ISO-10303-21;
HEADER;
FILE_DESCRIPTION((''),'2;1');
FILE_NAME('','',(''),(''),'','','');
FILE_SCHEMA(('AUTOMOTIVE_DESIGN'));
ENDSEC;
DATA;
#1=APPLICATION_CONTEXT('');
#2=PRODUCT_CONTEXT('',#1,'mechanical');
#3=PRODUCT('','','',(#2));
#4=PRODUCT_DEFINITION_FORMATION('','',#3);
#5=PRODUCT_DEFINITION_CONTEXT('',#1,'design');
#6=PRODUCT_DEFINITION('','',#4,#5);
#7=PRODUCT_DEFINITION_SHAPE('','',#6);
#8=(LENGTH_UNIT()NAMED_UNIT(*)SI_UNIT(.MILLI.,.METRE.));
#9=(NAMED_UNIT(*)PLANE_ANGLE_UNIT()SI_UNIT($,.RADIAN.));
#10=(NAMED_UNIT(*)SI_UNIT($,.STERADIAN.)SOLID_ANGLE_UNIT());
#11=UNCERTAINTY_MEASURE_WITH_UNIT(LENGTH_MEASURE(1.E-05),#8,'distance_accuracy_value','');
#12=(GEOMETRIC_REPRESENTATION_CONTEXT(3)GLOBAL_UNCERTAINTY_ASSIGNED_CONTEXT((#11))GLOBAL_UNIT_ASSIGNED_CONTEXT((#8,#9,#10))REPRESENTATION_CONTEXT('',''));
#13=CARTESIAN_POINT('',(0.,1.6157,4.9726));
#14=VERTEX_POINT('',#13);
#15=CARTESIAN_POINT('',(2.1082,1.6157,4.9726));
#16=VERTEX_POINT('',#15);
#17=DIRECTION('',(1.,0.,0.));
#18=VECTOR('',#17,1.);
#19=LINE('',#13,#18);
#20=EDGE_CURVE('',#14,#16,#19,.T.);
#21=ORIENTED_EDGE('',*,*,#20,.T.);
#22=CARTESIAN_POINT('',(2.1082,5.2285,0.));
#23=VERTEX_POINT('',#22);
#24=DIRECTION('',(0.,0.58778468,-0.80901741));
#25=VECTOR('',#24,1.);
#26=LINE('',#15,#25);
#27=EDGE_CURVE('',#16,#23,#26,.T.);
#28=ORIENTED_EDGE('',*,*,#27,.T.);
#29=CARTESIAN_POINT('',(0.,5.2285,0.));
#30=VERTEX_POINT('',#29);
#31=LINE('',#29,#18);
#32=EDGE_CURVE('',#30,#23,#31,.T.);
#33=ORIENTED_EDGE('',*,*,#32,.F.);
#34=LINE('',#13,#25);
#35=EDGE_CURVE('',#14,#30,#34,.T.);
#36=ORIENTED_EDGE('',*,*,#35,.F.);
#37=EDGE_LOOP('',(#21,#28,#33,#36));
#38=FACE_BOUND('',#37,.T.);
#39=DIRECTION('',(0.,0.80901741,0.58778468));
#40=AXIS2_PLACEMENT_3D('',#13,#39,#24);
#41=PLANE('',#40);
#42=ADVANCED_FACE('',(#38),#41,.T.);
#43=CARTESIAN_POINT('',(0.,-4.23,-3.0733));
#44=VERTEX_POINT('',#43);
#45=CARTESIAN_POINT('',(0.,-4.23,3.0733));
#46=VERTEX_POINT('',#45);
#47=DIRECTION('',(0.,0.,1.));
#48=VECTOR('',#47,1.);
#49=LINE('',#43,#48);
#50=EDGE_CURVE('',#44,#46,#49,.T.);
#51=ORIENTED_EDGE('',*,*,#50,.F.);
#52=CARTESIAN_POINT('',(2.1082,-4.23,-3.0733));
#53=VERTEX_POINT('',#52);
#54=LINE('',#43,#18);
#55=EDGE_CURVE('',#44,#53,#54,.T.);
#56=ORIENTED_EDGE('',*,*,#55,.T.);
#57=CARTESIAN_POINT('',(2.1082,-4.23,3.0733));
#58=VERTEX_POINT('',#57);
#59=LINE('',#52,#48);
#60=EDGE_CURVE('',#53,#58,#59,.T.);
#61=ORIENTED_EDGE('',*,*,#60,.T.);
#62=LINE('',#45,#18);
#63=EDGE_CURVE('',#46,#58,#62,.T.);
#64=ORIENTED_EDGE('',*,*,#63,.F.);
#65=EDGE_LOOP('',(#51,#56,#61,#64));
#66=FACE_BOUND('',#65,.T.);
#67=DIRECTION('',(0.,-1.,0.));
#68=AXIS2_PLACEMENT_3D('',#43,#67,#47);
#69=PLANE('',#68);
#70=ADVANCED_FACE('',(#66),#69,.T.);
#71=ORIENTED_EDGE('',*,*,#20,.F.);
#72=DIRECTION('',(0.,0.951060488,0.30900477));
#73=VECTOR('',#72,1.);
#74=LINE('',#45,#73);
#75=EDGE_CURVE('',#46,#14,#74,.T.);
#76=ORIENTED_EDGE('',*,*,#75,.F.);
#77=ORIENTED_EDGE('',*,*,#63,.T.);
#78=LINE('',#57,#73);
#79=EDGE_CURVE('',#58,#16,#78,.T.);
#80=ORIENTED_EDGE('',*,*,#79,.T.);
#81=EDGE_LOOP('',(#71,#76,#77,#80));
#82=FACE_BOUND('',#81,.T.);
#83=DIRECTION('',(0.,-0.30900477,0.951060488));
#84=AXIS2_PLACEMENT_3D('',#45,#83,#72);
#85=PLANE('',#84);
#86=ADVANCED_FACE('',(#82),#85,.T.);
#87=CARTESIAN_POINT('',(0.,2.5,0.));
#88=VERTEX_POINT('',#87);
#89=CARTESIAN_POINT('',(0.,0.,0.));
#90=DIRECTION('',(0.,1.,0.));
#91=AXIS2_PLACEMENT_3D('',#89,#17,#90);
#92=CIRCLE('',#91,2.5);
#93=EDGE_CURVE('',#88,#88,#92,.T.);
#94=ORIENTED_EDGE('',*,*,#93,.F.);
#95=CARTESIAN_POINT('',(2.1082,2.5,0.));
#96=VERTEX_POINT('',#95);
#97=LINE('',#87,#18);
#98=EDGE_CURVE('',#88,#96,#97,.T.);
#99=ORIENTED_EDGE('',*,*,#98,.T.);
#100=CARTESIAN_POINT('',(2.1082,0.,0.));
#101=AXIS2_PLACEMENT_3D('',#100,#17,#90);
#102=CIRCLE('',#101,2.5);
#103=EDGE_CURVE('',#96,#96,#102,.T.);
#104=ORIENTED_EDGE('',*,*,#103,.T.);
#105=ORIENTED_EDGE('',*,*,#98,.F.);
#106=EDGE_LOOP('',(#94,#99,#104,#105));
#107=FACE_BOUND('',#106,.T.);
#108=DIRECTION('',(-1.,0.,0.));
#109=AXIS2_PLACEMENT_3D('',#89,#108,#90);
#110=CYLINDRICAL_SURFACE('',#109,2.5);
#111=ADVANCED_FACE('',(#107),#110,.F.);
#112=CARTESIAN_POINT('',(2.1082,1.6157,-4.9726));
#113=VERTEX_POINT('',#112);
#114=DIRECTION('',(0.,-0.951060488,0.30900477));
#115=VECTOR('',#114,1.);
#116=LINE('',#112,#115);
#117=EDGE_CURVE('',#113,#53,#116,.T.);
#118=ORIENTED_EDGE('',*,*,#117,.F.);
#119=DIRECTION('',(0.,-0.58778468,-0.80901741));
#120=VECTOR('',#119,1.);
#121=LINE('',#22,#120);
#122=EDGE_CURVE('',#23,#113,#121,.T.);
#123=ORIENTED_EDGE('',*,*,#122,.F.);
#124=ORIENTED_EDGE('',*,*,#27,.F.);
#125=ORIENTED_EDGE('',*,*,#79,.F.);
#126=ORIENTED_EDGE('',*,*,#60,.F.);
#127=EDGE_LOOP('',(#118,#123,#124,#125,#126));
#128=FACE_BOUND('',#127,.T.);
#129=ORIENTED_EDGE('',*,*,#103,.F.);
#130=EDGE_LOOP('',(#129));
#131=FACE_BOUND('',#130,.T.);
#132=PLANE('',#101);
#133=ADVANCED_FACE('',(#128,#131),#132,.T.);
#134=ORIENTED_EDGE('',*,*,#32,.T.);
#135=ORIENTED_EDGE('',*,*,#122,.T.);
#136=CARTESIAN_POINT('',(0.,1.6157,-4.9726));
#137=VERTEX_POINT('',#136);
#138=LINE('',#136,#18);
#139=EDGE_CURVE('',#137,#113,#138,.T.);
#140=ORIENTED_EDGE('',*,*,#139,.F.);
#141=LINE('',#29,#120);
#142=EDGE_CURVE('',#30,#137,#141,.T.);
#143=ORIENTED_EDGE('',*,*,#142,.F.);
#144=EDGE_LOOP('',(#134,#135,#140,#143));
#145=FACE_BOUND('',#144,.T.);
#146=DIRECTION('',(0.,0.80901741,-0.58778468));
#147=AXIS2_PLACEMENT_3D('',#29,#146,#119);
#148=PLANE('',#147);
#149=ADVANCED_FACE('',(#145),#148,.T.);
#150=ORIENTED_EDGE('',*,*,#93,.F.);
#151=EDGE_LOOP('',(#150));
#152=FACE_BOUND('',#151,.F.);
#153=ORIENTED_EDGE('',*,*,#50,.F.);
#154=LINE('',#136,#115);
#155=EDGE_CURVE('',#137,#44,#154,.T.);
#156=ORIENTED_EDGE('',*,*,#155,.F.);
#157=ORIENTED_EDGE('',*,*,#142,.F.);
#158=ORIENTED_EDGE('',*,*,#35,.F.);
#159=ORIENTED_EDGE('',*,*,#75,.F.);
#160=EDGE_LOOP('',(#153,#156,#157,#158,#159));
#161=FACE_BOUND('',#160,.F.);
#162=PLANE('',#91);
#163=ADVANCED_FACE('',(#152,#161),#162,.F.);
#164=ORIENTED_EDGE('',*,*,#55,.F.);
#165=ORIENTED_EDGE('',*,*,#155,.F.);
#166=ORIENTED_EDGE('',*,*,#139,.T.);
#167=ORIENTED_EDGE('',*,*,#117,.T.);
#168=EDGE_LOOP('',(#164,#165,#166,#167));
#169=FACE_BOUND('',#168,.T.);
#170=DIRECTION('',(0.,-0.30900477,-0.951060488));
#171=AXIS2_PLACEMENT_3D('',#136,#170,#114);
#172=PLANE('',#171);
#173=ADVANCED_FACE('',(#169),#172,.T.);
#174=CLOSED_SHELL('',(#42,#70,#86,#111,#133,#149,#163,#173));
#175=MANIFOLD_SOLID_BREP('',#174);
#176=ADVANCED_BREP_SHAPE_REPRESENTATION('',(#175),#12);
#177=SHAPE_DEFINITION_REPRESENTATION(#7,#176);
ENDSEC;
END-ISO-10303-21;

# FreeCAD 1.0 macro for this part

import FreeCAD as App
import Part
import Sketcher

V = App.Vector
Q = App.Units.Quantity


def add_polygon(sketch, points):
    """Adds a closed chain of lines whose ends are joined by coincident constraints."""
    first, n = sketch.GeometryCount, len(points)
    for a, b in zip(points, points[1:] + points[:1]):
        sketch.addGeometry(Part.LineSegment(App.Vector(*a, 0), App.Vector(*b, 0)), False)
    for i in range(n):
        sketch.addConstraint(Sketcher.Constraint("Coincident", first + i, 2, first + (i + 1) % n, 1))

doc = App.newDocument("Part")
body = doc.addObject("PartDesign::Body", "Body")

# Sketch on YZ plane
sketch1 = doc.addObject("Sketcher::SketchObject", "Sketch")
body.addObject(sketch1)
sketch1.AttachmentSupport = (doc.YZ_Plane, [""])
sketch1.MapMode = "FlatFace"
add_polygon(sketch1, [(1.6157, -4.9726), (5.2285, 0), (1.6157, 4.9726), (-4.23, 3.0733), (-4.23, -3.0733)])  # lines 0-4
sketch1.addGeometry(Part.Circle(V(0, 0, 0), V(0, 0, 1), 2.5), False)  # 5
sketch1.addConstraint([
    Sketcher.Constraint("Vertical", 3),
    Sketcher.Constraint("Coincident", 5, 3, -1, 1),
    Sketcher.Constraint("Symmetric", 1, 2, 4, 2, -1),
    Sketcher.Constraint("PointOnObject", 0, 2, -1),
    Sketcher.Constraint("Equal", 1, 2),
    Sketcher.Constraint("Equal", 2, 4),
    Sketcher.Constraint("Diameter", 5, Q("5 mm")),
    Sketcher.Constraint("Angle", 0, Q("54 deg")),
    Sketcher.Constraint("Angle", 2, Q("-162.0007 deg")),
    Sketcher.Constraint("DistanceY", 3, 2, 3, 1, Q("0.242 in")),
    Sketcher.Constraint("DistanceX", -1, 1, 1, 2, Q("0.0636 in")),
])
pad1 = doc.addObject("PartDesign::Pad", "Pad")
body.addObject(pad1)
pad1.Profile = sketch1
pad1.Length = Q("0.083 in")

doc.recompute()
